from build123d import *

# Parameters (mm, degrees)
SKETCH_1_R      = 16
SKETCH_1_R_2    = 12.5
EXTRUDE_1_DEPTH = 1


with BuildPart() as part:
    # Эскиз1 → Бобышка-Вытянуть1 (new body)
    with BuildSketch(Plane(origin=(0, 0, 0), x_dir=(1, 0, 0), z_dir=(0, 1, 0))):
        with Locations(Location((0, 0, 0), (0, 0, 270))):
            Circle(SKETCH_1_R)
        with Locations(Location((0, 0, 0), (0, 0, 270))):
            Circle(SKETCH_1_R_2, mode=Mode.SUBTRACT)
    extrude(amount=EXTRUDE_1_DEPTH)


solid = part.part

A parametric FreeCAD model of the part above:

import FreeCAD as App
import Part
import Sketcher

V = App.Vector
Q = App.Units.Quantity

doc = App.newDocument("Part")
body = doc.addObject("PartDesign::Body", "Body")

# Sketch on XZ plane
sketch1 = body.newObject("Sketcher::SketchObject", "Sketch")
sketch1.AttachmentSupport = (doc.getObject("XZ_Plane"), [""])
sketch1.MapMode = "FlatFace"
sketch1.addGeometry([
    Part.Circle(V(0, 0, 0), V(0, 0, 1), 16),
    Part.Circle(V(0, 0, 0), V(0, 0, 1), 12),
], False)
sketch1.addConstraint([
    Sketcher.Constraint("Coincident", 0, 3, -1, 1),
    Sketcher.Constraint("Coincident", 1, 3, -1, 1),
    Sketcher.Constraint("Diameter", 0, Q("32 mm")),
    Sketcher.Constraint("Diameter", 1, Q("25 mm")),
])
pad1 = body.newObject("PartDesign::Pad", "Pad")
pad1.Profile = sketch1
pad1.Length = 1
pad1.Reversed = True

doc.recompute()
